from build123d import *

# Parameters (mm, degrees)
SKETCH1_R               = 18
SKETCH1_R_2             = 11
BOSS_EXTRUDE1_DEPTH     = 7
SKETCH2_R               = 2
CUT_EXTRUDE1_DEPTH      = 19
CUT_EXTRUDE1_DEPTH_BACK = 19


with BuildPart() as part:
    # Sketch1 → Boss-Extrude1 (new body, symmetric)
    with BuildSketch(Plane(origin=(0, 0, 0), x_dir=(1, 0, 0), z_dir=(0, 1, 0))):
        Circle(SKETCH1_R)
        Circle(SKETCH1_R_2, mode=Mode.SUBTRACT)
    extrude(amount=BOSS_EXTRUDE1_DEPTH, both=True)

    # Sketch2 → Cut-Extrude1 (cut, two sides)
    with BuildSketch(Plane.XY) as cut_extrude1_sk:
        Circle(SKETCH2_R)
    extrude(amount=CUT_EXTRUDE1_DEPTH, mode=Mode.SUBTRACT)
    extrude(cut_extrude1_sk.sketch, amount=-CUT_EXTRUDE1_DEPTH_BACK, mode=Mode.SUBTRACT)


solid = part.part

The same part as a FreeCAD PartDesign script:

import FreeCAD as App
import Part
import Sketcher
from FreeCAD import Vector

doc = App.newDocument("Part")
body = doc.addObject("PartDesign::Body", "Body")

sketch1 = body.newObject("Sketcher::SketchObject", "Sketch")
sketch1.AttachmentSupport = (doc.getObject("XZ_Plane"), [""])
sketch1.MapMode = "FlatFace"
sketch1.addGeometry([
    Part.Circle(Vector(0, 0, 0), Vector(0, 0, 1), 18),
    Part.Circle(Vector(0, 0, 0), Vector(0, 0, 1), 11),
], False)
sketch1.addConstraint([
    Sketcher.Constraint("Coincident", 0, 3, -1, 1),
    Sketcher.Constraint("Coincident", 1, 3, -1, 1),
    Sketcher.Constraint("Diameter", 0, 36.0),
    Sketcher.Constraint("Diameter", 1, 22.0),
])
pad1 = body.newObject("PartDesign::Pad", "Pad")
pad1.Profile = sketch1
pad1.Length = 14
pad1.Midplane = True

sketch2 = body.newObject("Sketcher::SketchObject", "Sketch001")
sketch2.AttachmentSupport = (doc.getObject("XY_Plane"), [""])
sketch2.MapMode = "FlatFace"
sketch2.addGeometry(Part.Circle(Vector(0, 0, 0), Vector(0, 0, 1), 2), False)
sketch2.addConstraint([
    Sketcher.Constraint("Coincident", 0, 3, -1, 1),
    Sketcher.Constraint("Diameter", 0, 4.0),
])
pocket1 = body.newObject("PartDesign::Pocket", "Pocket")
pocket1.Profile = sketch2
pocket1.Type = "ThroughAll"
pocket1.Midplane = True

doc.recompute()
